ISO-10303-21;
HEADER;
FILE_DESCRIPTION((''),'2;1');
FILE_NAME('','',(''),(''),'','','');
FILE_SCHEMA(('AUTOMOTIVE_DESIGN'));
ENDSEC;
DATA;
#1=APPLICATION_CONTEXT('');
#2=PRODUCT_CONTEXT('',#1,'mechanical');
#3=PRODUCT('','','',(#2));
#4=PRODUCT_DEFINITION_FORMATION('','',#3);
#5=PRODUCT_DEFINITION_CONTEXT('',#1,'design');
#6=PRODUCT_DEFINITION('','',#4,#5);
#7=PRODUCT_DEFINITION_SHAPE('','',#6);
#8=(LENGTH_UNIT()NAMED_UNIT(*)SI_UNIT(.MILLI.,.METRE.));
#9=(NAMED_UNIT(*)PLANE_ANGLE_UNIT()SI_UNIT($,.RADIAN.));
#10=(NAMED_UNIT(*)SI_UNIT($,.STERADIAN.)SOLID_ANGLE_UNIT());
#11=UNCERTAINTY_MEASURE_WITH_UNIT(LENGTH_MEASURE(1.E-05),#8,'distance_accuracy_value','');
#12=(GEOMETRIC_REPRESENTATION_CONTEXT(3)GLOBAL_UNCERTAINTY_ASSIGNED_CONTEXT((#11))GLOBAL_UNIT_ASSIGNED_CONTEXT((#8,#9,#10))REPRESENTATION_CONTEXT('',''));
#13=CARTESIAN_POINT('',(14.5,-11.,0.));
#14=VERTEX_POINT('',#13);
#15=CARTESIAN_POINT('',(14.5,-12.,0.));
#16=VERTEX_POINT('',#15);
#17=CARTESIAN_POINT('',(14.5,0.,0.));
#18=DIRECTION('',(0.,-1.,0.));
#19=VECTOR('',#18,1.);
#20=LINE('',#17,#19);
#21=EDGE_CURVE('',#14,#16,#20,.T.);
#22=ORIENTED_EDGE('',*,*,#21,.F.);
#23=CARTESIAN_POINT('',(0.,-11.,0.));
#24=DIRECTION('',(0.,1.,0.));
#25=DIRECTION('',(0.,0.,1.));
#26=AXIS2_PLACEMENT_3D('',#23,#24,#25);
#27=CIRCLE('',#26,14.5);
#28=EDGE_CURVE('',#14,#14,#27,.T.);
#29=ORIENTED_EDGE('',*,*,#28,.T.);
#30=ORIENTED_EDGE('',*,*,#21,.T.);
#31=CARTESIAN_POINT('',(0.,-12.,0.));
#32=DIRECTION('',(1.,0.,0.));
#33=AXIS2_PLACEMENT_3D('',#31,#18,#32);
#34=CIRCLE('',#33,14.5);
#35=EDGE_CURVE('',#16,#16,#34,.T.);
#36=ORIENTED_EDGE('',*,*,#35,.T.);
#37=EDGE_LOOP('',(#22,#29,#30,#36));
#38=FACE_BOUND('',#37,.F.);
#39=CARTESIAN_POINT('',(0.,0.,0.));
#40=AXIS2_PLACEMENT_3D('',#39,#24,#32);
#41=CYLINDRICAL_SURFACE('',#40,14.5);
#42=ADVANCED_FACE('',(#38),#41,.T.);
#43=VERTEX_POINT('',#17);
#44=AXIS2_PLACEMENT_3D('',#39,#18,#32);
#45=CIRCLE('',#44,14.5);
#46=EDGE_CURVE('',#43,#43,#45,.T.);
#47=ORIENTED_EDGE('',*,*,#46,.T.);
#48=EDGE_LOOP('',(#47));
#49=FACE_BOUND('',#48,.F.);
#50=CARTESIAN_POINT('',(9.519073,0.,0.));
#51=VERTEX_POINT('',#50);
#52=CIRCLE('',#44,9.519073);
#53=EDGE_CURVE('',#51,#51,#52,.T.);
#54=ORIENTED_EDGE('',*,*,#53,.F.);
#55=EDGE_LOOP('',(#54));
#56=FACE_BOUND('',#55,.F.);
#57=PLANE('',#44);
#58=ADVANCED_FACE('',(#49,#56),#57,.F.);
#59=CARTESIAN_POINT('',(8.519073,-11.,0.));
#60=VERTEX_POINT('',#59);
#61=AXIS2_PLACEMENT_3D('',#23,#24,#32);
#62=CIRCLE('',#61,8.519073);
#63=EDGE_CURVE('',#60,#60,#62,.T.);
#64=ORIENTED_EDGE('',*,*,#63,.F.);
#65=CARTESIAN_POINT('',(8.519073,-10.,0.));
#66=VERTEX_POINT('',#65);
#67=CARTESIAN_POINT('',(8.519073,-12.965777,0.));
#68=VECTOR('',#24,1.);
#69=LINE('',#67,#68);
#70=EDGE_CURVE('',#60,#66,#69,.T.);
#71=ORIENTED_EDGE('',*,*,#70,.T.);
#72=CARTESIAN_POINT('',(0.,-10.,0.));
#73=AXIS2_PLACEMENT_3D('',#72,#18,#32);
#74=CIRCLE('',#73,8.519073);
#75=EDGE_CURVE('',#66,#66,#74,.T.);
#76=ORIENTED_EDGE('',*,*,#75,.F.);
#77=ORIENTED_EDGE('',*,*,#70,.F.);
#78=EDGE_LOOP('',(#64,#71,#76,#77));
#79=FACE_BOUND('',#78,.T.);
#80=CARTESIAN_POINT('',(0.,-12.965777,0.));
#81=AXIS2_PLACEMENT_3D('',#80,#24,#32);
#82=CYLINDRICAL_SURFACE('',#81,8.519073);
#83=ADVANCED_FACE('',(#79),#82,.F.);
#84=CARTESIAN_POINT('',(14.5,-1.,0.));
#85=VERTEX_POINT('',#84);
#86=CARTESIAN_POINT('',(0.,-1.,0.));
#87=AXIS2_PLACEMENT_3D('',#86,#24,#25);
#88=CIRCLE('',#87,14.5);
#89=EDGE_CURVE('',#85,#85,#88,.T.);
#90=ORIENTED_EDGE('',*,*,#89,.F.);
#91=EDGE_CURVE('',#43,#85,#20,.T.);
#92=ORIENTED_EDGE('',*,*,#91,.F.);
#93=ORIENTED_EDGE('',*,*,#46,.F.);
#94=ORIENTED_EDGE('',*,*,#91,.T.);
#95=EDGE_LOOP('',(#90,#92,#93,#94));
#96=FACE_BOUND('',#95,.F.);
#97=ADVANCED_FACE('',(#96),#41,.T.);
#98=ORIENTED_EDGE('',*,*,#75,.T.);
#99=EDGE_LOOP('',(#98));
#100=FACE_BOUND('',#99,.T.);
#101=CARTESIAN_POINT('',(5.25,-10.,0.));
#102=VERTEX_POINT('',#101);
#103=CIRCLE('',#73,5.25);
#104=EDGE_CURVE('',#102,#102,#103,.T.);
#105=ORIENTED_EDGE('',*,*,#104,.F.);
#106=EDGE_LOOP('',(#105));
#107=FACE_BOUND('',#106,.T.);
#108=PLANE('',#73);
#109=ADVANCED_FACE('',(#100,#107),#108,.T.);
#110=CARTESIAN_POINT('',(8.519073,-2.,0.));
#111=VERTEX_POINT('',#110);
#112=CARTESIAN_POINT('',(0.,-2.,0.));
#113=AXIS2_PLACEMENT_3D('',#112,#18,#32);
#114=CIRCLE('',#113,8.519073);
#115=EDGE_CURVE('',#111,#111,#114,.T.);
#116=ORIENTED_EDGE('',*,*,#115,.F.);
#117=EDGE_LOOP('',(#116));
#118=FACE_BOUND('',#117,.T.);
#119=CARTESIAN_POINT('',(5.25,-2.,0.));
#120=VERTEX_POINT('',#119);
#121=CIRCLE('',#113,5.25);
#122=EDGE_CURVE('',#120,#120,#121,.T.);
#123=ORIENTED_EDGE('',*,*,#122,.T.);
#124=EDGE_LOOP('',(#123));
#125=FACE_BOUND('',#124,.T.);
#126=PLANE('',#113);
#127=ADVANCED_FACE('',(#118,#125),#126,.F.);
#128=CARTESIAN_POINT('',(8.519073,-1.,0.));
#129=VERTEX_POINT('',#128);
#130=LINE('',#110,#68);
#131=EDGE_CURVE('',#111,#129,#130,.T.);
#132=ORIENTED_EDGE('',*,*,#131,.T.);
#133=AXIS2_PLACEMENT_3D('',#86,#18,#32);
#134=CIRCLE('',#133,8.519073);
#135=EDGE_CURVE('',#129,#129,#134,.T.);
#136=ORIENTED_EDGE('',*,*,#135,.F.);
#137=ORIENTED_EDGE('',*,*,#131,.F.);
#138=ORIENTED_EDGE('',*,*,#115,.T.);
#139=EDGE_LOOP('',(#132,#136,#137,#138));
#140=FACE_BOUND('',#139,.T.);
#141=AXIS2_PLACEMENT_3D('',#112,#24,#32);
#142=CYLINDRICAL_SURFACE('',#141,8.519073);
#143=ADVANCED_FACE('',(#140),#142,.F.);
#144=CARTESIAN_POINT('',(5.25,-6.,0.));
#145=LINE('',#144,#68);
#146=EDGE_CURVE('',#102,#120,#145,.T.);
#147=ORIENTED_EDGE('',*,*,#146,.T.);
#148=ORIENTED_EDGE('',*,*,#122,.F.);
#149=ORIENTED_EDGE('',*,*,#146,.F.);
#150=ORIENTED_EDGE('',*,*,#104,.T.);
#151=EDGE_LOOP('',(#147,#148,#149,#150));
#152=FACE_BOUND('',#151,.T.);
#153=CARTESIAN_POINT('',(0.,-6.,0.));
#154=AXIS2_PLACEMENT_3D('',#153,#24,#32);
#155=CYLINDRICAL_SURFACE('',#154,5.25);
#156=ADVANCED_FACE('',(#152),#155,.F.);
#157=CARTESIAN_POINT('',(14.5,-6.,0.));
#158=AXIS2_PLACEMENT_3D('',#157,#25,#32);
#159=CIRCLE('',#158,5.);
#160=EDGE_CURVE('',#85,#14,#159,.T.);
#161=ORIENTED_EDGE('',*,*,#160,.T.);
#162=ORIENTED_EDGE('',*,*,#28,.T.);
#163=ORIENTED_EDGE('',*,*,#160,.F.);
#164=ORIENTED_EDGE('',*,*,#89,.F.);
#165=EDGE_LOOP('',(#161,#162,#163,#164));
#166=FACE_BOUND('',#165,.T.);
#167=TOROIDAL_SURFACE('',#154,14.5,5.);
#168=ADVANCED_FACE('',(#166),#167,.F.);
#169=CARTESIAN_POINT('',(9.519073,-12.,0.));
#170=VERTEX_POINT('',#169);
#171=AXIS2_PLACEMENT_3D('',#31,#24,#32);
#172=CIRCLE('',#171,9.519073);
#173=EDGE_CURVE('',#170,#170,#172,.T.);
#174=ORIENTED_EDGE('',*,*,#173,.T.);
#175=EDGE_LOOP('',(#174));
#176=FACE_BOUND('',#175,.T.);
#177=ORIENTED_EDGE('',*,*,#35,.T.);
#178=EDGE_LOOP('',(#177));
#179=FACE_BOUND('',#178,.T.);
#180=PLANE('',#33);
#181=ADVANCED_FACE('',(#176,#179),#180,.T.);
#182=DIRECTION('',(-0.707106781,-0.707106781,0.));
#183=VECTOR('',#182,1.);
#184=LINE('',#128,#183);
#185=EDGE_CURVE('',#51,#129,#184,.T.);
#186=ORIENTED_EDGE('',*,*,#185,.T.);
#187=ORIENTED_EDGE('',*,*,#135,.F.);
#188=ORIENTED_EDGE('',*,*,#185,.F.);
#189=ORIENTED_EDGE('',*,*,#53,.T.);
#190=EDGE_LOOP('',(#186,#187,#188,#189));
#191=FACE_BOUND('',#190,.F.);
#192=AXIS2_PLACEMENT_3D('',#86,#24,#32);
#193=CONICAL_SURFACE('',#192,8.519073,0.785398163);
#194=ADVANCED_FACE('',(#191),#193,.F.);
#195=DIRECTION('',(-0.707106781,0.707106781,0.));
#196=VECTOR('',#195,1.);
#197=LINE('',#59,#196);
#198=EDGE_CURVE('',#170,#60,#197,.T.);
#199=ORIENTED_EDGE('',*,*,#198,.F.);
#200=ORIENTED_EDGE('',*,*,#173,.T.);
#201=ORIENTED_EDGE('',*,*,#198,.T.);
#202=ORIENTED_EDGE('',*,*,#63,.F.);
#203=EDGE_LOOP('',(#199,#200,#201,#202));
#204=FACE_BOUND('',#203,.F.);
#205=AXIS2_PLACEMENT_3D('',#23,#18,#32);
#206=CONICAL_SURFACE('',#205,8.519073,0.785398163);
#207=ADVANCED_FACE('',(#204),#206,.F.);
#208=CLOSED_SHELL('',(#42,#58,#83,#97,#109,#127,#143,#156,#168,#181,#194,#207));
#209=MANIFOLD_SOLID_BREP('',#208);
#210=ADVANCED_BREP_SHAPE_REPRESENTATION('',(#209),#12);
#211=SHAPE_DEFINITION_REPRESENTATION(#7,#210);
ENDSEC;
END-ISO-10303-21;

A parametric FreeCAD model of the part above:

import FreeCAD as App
import Part
import Sketcher
Q = App.Units.Quantity


def edges_at(feature, points):
    """Names of the edges that pass closest to the given points."""
    edges = feature.Shape.Edges
    near = lambda p: min(range(len(edges)), key=lambda i: edges[i].distToShape(Part.Vertex(*p))[0])
    return sorted({f"Edge{near(p) + 1}" for p in points})

doc = App.newDocument("Part")
body = doc.addObject("PartDesign::Body", "Body")

# Sketch on XZ plane
sketch1 = doc.addObject("Sketcher::SketchObject", "Sketch")
body.addObject(sketch1)
sketch1.AttachmentSupport = (doc.XZ_Plane, [""])
sketch1.MapMode = "FlatFace"
sketch1.addGeometry(Part.Circle(App.Vector(0, 0, 0), App.Vector(0, 0, 1), 14), False)
sketch1.addConstraint([
    Sketcher.Constraint("Coincident", 0, 3, -1, 1),
    Sketcher.Constraint("Diameter", 0, Q("29 mm")),
])
pad1 = doc.addObject("PartDesign::Pad", "Pad")
body.addObject(pad1)
pad1.Profile = sketch1
pad1.Length = 12

# Sketch on XY plane
sketch2 = doc.addObject("Sketcher::SketchObject", "Sketch001")
body.addObject(sketch2)
sketch2.AttachmentSupport = (doc.XY_Plane, [""])
sketch2.MapMode = "FlatFace"
sketch2.addGeometry([
    Part.LineSegment(App.Vector(0, -13, 0), App.Vector(8.5, -13, 0)),  # 0
    Part.LineSegment(App.Vector(8.5, -13, 0), App.Vector(8.5, -10, 0)),  # 1
    Part.LineSegment(App.Vector(8.5, -10, 0), App.Vector(5.2, -10, 0)),  # 2
    Part.LineSegment(App.Vector(5.2, -10, 0), App.Vector(5.2, -2, 0)),  # 3
    Part.LineSegment(App.Vector(5.2, -2, 0), App.Vector(8.5, -2, 0)),  # 4
    Part.LineSegment(App.Vector(8.5, -2, 0), App.Vector(8.5, 0, 0)),  # 5
    Part.LineSegment(App.Vector(8.5, 0, 0), App.Vector(0, 0, 0)),  # 6
    Part.LineSegment(App.Vector(0, 0, 0), App.Vector(0, -13, 0)),  # 7
    Part.Circle(App.Vector(14.5, -6, 0), App.Vector(0, 0, 1), 5),  # 8
], False)
sketch2.addConstraint([
    Sketcher.Constraint("Coincident", 0, 2, 1, 1),
    Sketcher.Constraint("Coincident", 1, 2, 2, 1),
    Sketcher.Constraint("Coincident", 2, 2, 3, 1),
    Sketcher.Constraint("Coincident", 3, 2, 4, 1),
    Sketcher.Constraint("Coincident", 4, 2, 5, 1),
    Sketcher.Constraint("Coincident", 5, 2, 6, 1),
    Sketcher.Constraint("Coincident", 6, 2, 7, 1),
    Sketcher.Constraint("Coincident", 7, 2, 0, 1),
    Sketcher.Constraint("Horizontal", 0),
    Sketcher.Constraint("Vertical", 1),
    Sketcher.Constraint("Horizontal", 2),
    Sketcher.Constraint("Vertical", 3),
    Sketcher.Constraint("Horizontal", 4),
    Sketcher.Constraint("Vertical", 5),
    Sketcher.Constraint("Horizontal", 6),
    Sketcher.Constraint("Vertical", 7),
    Sketcher.Constraint("Coincident", 6, 2, -1, 1),
    Sketcher.Constraint("Vertical", 1, 2, 4, 2),
    Sketcher.Constraint("Diameter", 8, Q("10 mm")),
    Sketcher.Constraint("DistanceY", 3, 1, 3, 2, Q("8 mm")),
    Sketcher.Constraint("DistanceY", 5, 1, 5, 2, Q("2 mm")),
    Sketcher.Constraint("DistanceY", 8, 3, -1, 1, Q("6 mm")),
    Sketcher.Constraint("DistanceX", -1, 1, 8, 3, Q("14.5 mm")),
    Sketcher.Constraint("DistanceX", -1, 1, 2, 2, Q("5.25 mm")),
    Sketcher.Constraint("DistanceX", 0, 1, 0, 2, Q("8.519073 mm")),
    Sketcher.Constraint("DistanceY", 1, 1, 1, 2, Q("2.965777 mm")),
])
groove = doc.addObject("PartDesign::Groove", "Groove")
body.addObject(groove)
groove.Profile = sketch2
groove.ReferenceAxis = (sketch2, ["V_Axis"])
groove.Angle = 360
doc.recompute()

chamfer = doc.addObject("PartDesign::Chamfer", "Chamfer")
body.addObject(chamfer)
chamfer.Base = (groove, edges_at(groove, [(-8.519, 0, 0), (-8.519, -12, 0)]))
chamfer.Size = 1

doc.recompute()
